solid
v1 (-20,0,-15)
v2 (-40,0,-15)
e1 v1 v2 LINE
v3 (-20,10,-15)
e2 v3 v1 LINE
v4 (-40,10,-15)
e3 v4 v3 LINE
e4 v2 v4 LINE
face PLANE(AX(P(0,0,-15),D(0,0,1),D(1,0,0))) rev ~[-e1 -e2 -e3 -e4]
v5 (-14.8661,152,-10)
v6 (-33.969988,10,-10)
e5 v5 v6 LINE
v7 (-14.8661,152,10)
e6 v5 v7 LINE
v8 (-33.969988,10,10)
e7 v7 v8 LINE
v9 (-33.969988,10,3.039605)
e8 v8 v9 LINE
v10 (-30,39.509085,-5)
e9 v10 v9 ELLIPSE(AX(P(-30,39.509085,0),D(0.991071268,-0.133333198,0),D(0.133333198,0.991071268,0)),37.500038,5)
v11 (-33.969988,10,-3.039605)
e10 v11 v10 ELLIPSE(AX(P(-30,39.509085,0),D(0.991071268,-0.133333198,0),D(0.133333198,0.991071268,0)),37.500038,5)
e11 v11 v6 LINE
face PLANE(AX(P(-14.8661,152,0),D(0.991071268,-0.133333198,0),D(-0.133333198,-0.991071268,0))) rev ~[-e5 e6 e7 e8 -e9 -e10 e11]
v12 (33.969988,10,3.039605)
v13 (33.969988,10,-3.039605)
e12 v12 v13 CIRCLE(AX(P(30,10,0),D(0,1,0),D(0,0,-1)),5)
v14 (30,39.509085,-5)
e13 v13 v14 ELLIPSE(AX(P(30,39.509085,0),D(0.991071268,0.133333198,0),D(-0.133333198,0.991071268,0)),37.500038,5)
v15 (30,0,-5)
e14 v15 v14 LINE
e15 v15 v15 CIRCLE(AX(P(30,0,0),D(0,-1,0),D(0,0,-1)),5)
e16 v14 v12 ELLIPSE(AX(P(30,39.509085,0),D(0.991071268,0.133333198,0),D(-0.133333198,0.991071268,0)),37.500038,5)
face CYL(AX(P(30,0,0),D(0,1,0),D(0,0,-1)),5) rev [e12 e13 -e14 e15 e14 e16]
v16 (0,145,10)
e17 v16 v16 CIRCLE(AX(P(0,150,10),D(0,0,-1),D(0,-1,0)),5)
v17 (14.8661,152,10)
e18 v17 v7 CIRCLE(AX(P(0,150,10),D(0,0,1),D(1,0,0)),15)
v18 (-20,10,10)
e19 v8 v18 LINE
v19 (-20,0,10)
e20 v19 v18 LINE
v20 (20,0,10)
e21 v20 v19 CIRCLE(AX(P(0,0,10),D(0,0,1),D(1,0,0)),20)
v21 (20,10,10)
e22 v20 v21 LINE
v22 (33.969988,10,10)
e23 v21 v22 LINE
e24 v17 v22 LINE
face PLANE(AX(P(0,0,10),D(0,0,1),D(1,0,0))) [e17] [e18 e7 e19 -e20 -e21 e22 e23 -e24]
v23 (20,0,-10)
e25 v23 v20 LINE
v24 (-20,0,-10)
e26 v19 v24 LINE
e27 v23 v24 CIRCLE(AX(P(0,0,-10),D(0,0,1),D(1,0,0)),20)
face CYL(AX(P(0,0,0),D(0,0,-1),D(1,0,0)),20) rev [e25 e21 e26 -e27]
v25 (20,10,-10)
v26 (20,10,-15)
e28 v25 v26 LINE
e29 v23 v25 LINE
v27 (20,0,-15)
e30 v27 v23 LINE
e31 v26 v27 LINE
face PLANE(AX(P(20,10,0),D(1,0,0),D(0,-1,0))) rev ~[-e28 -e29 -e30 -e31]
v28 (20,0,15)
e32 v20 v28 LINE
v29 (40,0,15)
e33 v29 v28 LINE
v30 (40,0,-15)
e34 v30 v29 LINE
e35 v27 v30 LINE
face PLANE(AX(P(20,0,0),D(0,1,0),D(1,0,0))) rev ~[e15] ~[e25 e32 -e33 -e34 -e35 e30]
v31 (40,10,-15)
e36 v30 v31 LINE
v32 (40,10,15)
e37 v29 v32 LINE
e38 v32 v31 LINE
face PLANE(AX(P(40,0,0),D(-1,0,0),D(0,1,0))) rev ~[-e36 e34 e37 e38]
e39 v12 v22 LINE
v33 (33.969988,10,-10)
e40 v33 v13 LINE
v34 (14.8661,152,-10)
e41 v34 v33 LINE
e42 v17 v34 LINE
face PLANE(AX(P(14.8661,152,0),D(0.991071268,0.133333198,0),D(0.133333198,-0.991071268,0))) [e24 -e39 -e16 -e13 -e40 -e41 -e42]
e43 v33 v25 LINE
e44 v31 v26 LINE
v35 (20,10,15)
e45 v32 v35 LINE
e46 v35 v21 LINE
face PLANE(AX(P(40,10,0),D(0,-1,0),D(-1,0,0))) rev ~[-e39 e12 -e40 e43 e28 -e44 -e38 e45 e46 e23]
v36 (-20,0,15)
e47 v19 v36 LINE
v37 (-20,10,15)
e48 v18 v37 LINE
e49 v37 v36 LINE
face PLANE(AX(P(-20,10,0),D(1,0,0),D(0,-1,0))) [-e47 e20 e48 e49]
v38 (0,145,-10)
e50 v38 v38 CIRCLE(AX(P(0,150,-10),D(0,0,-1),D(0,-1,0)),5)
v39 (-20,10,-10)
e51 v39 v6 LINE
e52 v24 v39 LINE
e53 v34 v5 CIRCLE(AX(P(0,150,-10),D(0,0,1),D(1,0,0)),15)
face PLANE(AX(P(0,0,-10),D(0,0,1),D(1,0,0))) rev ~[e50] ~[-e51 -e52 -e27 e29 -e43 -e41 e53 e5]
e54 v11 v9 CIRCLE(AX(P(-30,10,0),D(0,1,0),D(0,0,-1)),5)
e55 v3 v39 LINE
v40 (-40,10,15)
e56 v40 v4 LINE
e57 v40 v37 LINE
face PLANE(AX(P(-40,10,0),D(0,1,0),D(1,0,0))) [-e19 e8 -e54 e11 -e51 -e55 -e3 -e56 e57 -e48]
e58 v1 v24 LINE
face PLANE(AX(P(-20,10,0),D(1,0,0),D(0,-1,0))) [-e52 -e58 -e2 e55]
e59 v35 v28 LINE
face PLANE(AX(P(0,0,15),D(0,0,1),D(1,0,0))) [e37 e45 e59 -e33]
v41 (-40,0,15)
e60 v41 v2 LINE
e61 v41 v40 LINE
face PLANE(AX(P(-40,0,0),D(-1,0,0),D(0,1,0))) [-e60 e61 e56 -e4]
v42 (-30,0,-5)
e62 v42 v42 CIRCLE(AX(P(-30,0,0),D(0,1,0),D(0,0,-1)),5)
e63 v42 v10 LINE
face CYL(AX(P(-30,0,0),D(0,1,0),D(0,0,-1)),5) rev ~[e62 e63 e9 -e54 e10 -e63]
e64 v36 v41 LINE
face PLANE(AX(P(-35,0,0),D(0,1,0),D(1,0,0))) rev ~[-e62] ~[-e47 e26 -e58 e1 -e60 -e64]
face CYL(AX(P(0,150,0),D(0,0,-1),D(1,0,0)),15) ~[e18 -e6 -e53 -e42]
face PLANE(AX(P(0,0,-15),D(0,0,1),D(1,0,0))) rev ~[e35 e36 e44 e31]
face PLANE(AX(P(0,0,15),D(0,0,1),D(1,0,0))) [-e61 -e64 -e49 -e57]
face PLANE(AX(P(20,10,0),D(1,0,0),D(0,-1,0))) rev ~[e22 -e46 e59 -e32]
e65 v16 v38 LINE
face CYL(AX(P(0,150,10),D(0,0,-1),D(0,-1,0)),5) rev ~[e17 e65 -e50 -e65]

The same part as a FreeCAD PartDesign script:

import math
import FreeCAD as App
import Part
import Sketcher
from FreeCAD import Vector
Q = App.Units.Quantity

doc = App.newDocument("Part")
body = doc.addObject("PartDesign::Body", "Body")

sketch1 = doc.addObject("Sketcher::SketchObject", "Sketch")
body.addObject(sketch1)
sketch1.AttachmentSupport = (doc.XY_Plane, [""])
sketch1.MapMode = "FlatFace"
sketch1.addGeometry(Part.ArcOfCircle(Part.Circle(Vector(0, 0, 0), Vector(0, 0, 1), 20), math.radians(0), math.radians(180)), False)
sketch1.addGeometry(Part.LineSegment(Vector(20, 0, 0), Vector(35, 0, 0)), False)
sketch1.addGeometry(Part.ArcOfCircle(Part.Circle(Vector(0, 0, 0), Vector(0, 0, 1), 35), math.radians(0), math.radians(180)), False)
sketch1.addGeometry(Part.LineSegment(Vector(-35, 0, 0), Vector(-20, 0, 0)), False)
sketch1.addConstraint(Sketcher.Constraint("Coincident", 0, 1, 1, 1))
sketch1.addConstraint(Sketcher.Constraint("Coincident", 1, 2, 2, 1))
sketch1.addConstraint(Sketcher.Constraint("Coincident", 2, 2, 3, 1))
sketch1.addConstraint(Sketcher.Constraint("Coincident", 3, 2, 0, 2))
sketch1.addConstraint(Sketcher.Constraint("Horizontal", 1))
sketch1.addConstraint(Sketcher.Constraint("Horizontal", 3))
sketch1.addConstraint(Sketcher.Constraint("Coincident", 0, 3, -1, 1))
sketch1.addConstraint(Sketcher.Constraint("Coincident", 2, 3, -1, 1))
sketch1.addConstraint(Sketcher.Constraint("PointOnObject", 0, 1, -1))
sketch1.addConstraint(Sketcher.Constraint("PointOnObject", 2, 2, -1))
sketch1.addConstraint(Sketcher.Constraint("Radius", 2, Q("35 mm")))
sketch1.addConstraint(Sketcher.Constraint("Radius", 0, Q("20 mm")))
pad1 = doc.addObject("PartDesign::Pad", "Pad")
body.addObject(pad1)
pad1.Profile = sketch1
pad1.Length = 20
pad1.Midplane = True

sketch2 = doc.addObject("Sketcher::SketchObject", "Sketch001")
body.addObject(sketch2)
sketch2.AttachmentSupport = (doc.XY_Plane, [""])
sketch2.MapMode = "FlatFace"
sketch2.addGeometry(Part.LineSegment(Vector(-40, 0, 0), Vector(-20, 0, 0)), False)
sketch2.addGeometry(Part.LineSegment(Vector(-20, 0, 0), Vector(-20, 10, 0)), False)
sketch2.addGeometry(Part.LineSegment(Vector(-20, 10, 0), Vector(-40, 10, 0)), False)
sketch2.addGeometry(Part.LineSegment(Vector(-40, 10, 0), Vector(-40, 0, 0)), False)
sketch2.addGeometry(Part.LineSegment(Vector(20, 10, 0), Vector(20, 0, 0)), False)
sketch2.addGeometry(Part.LineSegment(Vector(20, 0, 0), Vector(40, 0, 0)), False)
sketch2.addGeometry(Part.LineSegment(Vector(40, 0, 0), Vector(40, 10, 0)), False)
sketch2.addGeometry(Part.LineSegment(Vector(40, 10, 0), Vector(20, 10, 0)), False)
sketch2.addConstraint(Sketcher.Constraint("Coincident", 0, 2, 1, 1))
sketch2.addConstraint(Sketcher.Constraint("Coincident", 1, 2, 2, 1))
sketch2.addConstraint(Sketcher.Constraint("Coincident", 2, 2, 3, 1))
sketch2.addConstraint(Sketcher.Constraint("Coincident", 3, 2, 0, 1))
sketch2.addConstraint(Sketcher.Constraint("Coincident", 4, 2, 5, 1))
sketch2.addConstraint(Sketcher.Constraint("Coincident", 5, 2, 6, 1))
sketch2.addConstraint(Sketcher.Constraint("Coincident", 6, 2, 7, 1))
sketch2.addConstraint(Sketcher.Constraint("Coincident", 7, 2, 4, 1))
sketch2.addConstraint(Sketcher.Constraint("Horizontal", 0))
sketch2.addConstraint(Sketcher.Constraint("Vertical", 1))
sketch2.addConstraint(Sketcher.Constraint("Horizontal", 2))
sketch2.addConstraint(Sketcher.Constraint("Vertical", 3))
sketch2.addConstraint(Sketcher.Constraint("Vertical", 4))
sketch2.addConstraint(Sketcher.Constraint("Horizontal", 5))
sketch2.addConstraint(Sketcher.Constraint("Vertical", 6))
sketch2.addConstraint(Sketcher.Constraint("Horizontal", 7))
sketch2.addConstraint(Sketcher.Constraint("Symmetric", 0, 2, 4, 2, -1, 1))
sketch2.addConstraint(Sketcher.Constraint("Symmetric", 3, 2, 5, 2, -2))
sketch2.addConstraint(Sketcher.Constraint("Horizontal", 2, 2, 6, 2))
sketch2.addConstraint(Sketcher.Constraint("DistanceX", 0, 1, 0, 2, Q("20 mm")))
sketch2.addConstraint(Sketcher.Constraint("DistanceY", 1, 1, 1, 2, Q("10 mm")))
sketch2.addConstraint(Sketcher.Constraint("DistanceX", 0, 2, -1, 1, Q("20 mm")))
pad2 = doc.addObject("PartDesign::Pad", "Pad001")
body.addObject(pad2)
pad2.Profile = sketch2
pad2.Length = 30
pad2.Midplane = True

sketch3 = doc.addObject("Sketcher::SketchObject", "Sketch002")
body.addObject(sketch3)
sketch3.AttachmentSupport = (doc.XY_Plane, [""])
sketch3.MapMode = "FlatFace"
sketch3.addGeometry(Part.ArcOfCircle(Part.Circle(Vector(0, 150, 0), Vector(0, 0, 1), 15), math.radians(8), math.radians(172)), False)
sketch3.addGeometry(Part.LineSegment(Vector(-15, 152, 0), Vector(-35, 5, 0)), False)
sketch3.addGeometry(Part.ArcOfCircle(Part.Circle(Vector(0, 0, 0), Vector(0, 0, 1), 35), math.radians(8), math.radians(172)), False)
sketch3.addGeometry(Part.LineSegment(Vector(35, 5, 0), Vector(15, 152, 0)), False)
sketch3.addConstraint(Sketcher.Constraint("Tangent", 0, 2, 1, 1))
sketch3.addConstraint(Sketcher.Constraint("Tangent", 1, 2, 2, 2))
sketch3.addConstraint(Sketcher.Constraint("Tangent", 2, 1, 3, 1))
sketch3.addConstraint(Sketcher.Constraint("Tangent", 3, 2, 0, 1))
sketch3.addConstraint(Sketcher.Constraint("Coincident", 2, 3, -1, 1))
sketch3.addConstraint(Sketcher.Constraint("PointOnObject", 0, 3, -2))
sketch3.addConstraint(Sketcher.Constraint("Radius", 0, Q("15 mm")))
sketch3.addConstraint(Sketcher.Constraint("DistanceY", -1, 1, 0, 3, Q("150 mm")))
sketch3.addConstraint(Sketcher.Constraint("Radius", 2, Q("35 mm")))
pad3 = doc.addObject("PartDesign::Pad", "Pad002")
body.addObject(pad3)
pad3.Profile = sketch3
pad3.Length = 20
pad3.Midplane = True

sketch4 = doc.addObject("Sketcher::SketchObject", "Sketch003")
body.addObject(sketch4)
sketch4.AttachmentSupport = (doc.XY_Plane, [""])
sketch4.MapMode = "FlatFace"
sketch4.AttachmentOffset = App.Placement(Vector(0, 0, 10), App.Rotation())
sketch4.addGeometry(Part.Circle(Vector(0, 150, 0), Vector(0, 0, 1), 5), False)
sketch4.addConstraint(Sketcher.Constraint("PointOnObject", 0, 3, -2))
sketch4.addConstraint(Sketcher.Constraint("Diameter", 0, Q("10 mm")))
sketch4.addConstraint(Sketcher.Constraint("DistanceY", -1, 1, 0, 3, Q("150 mm")))
doc.recompute()
hole = doc.addObject("PartDesign::Hole", "Hole")
body.addObject(hole)
hole.Profile = sketch4
hole.ThreadType = "None"
hole.Diameter = 10
hole.DepthType = "ThroughAll"

sketch5 = doc.addObject("Sketcher::SketchObject", "Sketch004")
body.addObject(sketch5)
sketch5.AttachmentSupport = (doc.XZ_Plane, [""])
sketch5.MapMode = "FlatFace"
sketch5.addGeometry(Part.Circle(Vector(-30, 0, 0), Vector(0, 0, 1), 5), False)
sketch5.addConstraint(Sketcher.Constraint("PointOnObject", 0, 3, -1))
sketch5.addConstraint(Sketcher.Constraint("Diameter", 0, Q("10 mm")))
sketch5.addConstraint(Sketcher.Constraint("DistanceX", 0, 3, -1, 1, Q("30 mm")))
doc.recompute()
hole2 = doc.addObject("PartDesign::Hole", "Hole001")
body.addObject(hole2)
hole2.Profile = sketch5
hole2.ThreadType = "None"
hole2.Diameter = 10
hole2.DepthType = "ThroughAll"
doc.recompute()

mirrored = doc.addObject("PartDesign::Mirrored", "Mirrored")
body.addObject(mirrored)
mirrored.Originals = [hole2]
mirrored.MirrorPlane = (doc.YZ_Plane, [""])
body.Tip = mirrored

doc.recompute()
